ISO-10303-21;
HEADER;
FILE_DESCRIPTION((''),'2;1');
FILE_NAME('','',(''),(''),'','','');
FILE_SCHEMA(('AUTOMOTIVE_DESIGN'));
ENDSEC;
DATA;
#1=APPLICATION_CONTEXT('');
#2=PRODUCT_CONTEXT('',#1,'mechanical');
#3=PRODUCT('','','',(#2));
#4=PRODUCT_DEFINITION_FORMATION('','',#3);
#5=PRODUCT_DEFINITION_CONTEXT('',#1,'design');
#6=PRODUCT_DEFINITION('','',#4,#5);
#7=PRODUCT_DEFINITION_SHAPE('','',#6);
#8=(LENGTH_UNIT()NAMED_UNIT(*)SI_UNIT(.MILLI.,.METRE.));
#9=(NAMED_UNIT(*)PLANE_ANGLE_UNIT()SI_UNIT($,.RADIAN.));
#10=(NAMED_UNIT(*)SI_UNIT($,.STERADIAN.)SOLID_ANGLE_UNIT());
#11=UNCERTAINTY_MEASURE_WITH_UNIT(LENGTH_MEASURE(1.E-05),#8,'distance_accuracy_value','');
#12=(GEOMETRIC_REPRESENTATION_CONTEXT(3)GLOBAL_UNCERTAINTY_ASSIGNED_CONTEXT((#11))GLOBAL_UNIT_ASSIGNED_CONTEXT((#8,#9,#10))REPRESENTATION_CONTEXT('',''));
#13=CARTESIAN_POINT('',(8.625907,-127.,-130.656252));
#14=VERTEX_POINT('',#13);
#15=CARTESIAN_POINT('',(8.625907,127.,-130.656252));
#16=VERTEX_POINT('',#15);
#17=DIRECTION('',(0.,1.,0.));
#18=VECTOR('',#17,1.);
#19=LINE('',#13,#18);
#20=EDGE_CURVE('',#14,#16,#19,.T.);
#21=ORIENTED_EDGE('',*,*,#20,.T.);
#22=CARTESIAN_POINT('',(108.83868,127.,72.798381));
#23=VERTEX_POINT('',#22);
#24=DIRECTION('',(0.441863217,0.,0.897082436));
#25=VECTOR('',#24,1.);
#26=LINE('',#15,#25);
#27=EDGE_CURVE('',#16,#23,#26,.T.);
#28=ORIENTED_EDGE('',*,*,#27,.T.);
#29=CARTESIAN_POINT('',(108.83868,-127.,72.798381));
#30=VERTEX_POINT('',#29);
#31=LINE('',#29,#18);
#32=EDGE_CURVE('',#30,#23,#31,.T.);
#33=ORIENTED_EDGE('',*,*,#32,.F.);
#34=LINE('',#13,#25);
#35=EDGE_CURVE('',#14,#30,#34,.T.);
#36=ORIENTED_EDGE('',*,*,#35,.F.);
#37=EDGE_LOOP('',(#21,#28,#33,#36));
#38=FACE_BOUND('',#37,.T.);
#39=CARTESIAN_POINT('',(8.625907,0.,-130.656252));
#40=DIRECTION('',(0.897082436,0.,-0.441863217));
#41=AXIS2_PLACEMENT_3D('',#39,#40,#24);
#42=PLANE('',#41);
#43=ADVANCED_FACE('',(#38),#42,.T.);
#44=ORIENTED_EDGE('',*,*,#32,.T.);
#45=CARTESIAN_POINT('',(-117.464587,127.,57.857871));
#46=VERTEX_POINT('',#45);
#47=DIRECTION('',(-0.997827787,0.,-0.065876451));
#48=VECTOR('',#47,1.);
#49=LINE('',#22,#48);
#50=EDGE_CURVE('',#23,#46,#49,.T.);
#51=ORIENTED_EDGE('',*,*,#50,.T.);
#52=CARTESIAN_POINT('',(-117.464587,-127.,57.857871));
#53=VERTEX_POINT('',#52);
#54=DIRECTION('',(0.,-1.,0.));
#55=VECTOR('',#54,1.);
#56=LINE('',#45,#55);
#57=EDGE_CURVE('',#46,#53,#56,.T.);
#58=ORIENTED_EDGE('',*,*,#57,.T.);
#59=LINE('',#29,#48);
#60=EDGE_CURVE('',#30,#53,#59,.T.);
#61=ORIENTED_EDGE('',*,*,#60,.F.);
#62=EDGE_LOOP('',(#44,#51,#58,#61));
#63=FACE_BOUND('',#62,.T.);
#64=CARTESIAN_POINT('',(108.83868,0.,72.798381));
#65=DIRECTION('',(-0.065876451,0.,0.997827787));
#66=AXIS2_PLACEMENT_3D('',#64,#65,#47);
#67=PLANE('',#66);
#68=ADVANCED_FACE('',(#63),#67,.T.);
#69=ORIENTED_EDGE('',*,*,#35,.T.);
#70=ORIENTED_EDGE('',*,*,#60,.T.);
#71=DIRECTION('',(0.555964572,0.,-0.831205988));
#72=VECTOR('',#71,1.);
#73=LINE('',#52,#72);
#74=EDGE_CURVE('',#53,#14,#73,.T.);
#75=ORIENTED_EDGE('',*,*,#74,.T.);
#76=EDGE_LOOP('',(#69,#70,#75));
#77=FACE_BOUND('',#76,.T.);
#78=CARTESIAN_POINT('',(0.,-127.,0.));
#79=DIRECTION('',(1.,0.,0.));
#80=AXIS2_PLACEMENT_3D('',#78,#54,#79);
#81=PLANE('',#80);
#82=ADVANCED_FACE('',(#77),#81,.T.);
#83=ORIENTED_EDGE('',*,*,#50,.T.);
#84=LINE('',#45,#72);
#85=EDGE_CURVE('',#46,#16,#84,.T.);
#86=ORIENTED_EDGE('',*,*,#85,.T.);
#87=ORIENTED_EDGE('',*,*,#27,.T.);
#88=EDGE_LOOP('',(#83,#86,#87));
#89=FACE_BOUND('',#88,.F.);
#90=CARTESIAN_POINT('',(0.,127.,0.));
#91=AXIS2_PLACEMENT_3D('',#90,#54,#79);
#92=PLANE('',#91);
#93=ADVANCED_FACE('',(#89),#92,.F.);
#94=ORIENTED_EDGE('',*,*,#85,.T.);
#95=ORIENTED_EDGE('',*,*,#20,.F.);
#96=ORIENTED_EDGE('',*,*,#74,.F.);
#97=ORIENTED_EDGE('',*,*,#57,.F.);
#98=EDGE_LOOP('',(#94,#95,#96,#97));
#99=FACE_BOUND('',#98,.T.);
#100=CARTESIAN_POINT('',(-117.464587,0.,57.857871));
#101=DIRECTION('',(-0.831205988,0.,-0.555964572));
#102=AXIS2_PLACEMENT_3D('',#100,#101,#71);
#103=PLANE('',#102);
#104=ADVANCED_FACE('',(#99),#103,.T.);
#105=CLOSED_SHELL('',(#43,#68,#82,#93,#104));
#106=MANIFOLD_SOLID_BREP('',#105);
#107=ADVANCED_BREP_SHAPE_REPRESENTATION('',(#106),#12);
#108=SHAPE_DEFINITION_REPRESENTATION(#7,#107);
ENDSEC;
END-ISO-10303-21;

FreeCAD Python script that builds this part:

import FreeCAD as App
import Part
import Sketcher

V = App.Vector
Q = App.Units.Quantity


def add_polygon(sketch, points):
    """Adds a closed chain of lines whose ends are joined by coincident constraints."""
    first, n = sketch.GeometryCount, len(points)
    for a, b in zip(points, points[1:] + points[:1]):
        sketch.addGeometry(Part.LineSegment(App.Vector(*a, 0), App.Vector(*b, 0)), False)
    for i in range(n):
        sketch.addConstraint(Sketcher.Constraint("Coincident", first + i, 2, first + (i + 1) % n, 1))

doc = App.newDocument("Part")
body = doc.addObject("PartDesign::Body", "Body")

# Sketch on XZ plane
sketch1 = body.newObject("Sketcher::SketchObject", "Sketch")
sketch1.AttachmentSupport = (doc.getObject("XZ_Plane"), [""])
sketch1.MapMode = "FlatFace"
add_polygon(sketch1, [(108.83868, 72.798381), (-117.464587, 57.857871), (8.625907, -130.656252)])  # lines 0-2
sketch1.addConstraint([
    Sketcher.Constraint("Equal", 0, 1),
    Sketcher.Constraint("Equal", 1, 2),
    Sketcher.Constraint("DistanceY", -1, 1, 0, 2, 57.857871),
    Sketcher.Constraint("DistanceY", 1, 2, -1, 1, 130.656252),
    Sketcher.Constraint("DistanceX", -1, 1, 2, 2, 108.83868),
    Sketcher.Constraint("DistanceY", -1, 1, 2, 2, 72.798381),
])
pad1 = body.newObject("PartDesign::Pad", "Pad")
pad1.Profile = sketch1
pad1.Length = Q("10 in")
pad1.Midplane = True

doc.recompute()
